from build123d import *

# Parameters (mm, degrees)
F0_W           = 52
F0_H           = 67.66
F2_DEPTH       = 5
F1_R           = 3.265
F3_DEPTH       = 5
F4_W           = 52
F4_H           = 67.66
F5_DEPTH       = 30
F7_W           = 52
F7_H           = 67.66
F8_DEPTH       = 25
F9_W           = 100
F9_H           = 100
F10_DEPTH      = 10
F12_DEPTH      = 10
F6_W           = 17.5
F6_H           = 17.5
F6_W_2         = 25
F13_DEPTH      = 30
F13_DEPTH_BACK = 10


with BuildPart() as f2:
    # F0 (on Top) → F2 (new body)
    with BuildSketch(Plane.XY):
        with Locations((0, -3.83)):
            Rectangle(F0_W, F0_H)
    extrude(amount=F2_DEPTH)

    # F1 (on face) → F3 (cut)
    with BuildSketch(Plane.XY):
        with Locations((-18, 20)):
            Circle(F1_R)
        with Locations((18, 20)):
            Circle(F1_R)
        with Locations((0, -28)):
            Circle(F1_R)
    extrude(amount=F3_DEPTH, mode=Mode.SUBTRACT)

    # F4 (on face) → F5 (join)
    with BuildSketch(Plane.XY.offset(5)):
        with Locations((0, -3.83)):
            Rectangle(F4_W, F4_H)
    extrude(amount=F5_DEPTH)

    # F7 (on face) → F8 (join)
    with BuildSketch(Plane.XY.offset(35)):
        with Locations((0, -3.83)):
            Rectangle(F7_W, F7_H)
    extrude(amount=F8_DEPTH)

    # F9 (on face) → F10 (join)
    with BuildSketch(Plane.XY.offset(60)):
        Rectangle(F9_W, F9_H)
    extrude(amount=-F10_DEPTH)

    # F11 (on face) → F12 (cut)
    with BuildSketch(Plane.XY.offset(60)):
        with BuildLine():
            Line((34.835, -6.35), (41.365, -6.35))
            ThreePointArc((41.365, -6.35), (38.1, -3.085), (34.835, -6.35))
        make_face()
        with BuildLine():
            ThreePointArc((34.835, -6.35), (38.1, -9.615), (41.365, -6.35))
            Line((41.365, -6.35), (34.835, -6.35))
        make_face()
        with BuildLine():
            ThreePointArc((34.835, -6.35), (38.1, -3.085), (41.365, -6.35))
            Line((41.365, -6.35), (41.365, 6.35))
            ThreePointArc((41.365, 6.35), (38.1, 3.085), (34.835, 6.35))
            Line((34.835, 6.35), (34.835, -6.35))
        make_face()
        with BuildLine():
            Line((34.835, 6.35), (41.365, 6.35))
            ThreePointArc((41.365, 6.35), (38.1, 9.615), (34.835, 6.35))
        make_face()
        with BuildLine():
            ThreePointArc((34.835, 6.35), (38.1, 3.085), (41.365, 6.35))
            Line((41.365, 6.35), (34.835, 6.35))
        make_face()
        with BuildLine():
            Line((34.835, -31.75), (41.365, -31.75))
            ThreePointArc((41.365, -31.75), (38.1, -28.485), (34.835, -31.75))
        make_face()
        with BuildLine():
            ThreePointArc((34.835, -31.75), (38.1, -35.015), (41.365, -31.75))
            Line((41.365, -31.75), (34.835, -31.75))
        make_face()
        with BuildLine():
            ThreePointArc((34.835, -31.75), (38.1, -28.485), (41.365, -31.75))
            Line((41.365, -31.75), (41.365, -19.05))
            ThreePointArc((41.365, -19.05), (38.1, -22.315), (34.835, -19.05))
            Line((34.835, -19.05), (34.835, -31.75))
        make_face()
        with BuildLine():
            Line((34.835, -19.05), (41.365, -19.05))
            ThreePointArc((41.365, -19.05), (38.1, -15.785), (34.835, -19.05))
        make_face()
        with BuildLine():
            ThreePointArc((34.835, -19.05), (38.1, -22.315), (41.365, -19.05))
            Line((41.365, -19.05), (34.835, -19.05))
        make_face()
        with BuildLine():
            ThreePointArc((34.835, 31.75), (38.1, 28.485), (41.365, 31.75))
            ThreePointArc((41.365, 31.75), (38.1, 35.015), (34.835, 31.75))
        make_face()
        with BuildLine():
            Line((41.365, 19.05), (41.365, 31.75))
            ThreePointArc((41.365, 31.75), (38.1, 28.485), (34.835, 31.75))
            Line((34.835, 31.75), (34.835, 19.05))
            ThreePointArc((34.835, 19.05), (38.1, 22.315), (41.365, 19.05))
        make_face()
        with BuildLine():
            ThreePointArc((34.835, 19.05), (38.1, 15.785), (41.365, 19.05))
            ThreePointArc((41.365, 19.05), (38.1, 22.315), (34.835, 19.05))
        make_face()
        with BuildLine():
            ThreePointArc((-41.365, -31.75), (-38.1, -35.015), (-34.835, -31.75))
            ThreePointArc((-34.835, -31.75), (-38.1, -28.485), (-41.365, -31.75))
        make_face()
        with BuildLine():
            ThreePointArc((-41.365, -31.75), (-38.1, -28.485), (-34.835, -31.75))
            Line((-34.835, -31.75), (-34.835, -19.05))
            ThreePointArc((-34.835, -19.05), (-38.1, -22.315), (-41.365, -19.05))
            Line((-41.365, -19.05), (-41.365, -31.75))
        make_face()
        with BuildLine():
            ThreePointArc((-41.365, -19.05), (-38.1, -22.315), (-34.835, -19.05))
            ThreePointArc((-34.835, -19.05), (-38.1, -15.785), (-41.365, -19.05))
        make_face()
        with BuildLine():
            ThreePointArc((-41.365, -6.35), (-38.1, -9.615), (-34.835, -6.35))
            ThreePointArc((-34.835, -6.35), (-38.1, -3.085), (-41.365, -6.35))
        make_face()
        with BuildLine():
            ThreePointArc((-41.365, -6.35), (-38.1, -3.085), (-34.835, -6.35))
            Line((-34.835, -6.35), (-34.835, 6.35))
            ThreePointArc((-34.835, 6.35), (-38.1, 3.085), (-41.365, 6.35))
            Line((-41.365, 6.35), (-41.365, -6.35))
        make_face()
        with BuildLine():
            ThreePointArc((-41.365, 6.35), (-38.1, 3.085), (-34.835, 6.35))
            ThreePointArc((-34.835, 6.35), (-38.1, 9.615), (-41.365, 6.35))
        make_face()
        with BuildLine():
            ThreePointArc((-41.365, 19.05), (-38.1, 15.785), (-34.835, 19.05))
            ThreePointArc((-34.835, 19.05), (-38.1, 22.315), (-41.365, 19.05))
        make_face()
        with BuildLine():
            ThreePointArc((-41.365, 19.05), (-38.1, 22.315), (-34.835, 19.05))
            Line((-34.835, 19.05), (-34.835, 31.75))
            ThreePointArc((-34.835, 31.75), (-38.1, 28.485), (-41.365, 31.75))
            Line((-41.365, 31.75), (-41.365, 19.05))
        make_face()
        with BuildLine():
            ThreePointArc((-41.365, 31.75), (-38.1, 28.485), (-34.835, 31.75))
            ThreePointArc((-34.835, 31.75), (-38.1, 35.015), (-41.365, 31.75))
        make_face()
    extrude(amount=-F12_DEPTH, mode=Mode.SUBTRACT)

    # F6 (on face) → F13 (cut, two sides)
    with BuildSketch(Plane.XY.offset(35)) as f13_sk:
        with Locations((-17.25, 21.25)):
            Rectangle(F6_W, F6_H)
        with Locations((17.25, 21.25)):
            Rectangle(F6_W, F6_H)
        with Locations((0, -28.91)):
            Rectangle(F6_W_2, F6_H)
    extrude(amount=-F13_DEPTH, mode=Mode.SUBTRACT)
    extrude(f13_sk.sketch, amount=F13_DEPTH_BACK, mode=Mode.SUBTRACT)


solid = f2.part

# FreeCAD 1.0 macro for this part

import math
import FreeCAD as App
import Part
import Sketcher
from FreeCAD import Vector


def add_polygon(sketch, points):
    """Adds a closed chain of lines whose ends are joined by coincident constraints."""
    first, n = sketch.GeometryCount, len(points)
    for a, b in zip(points, points[1:] + points[:1]):
        sketch.addGeometry(Part.LineSegment(App.Vector(*a, 0), App.Vector(*b, 0)), False)
    for i in range(n):
        sketch.addConstraint(Sketcher.Constraint("Coincident", first + i, 2, first + (i + 1) % n, 1))

doc = App.newDocument("Part")
body = doc.addObject("PartDesign::Body", "Body")

# Sketch on XY plane
sketch1 = body.newObject("Sketcher::SketchObject", "Sketch")
sketch1.AttachmentSupport = (doc.getObject("XY_Plane"), [""])
sketch1.MapMode = "FlatFace"
add_polygon(sketch1, [(-26, 30), (-26, -38), (26, -38), (26, 30)])  # lines 0-3
sketch1.addConstraint(Sketcher.Constraint("Vertical", 0))
sketch1.addConstraint(Sketcher.Constraint("Horizontal", 1))
sketch1.addConstraint(Sketcher.Constraint("Vertical", 2))
sketch1.addConstraint(Sketcher.Constraint("Horizontal", 3))
sketch1.addConstraint(Sketcher.Constraint("DistanceX", 1, 1, 1, 2, 52.0))
sketch1.addConstraint(Sketcher.Constraint("DistanceX", 0, 2, -1, 1, 26.0))
sketch1.addConstraint(Sketcher.Constraint("DistanceY", -1, 1, 2, 2, 30.0))
sketch1.addConstraint(Sketcher.Constraint("DistanceY", 0, 2, 0, 1, 67.66))
pad1 = body.newObject("PartDesign::Pad", "Pad")
pad1.Profile = sketch1
pad1.Length = 5

# Sketch on XY plane
sketch2 = body.newObject("Sketcher::SketchObject", "Sketch001")
sketch2.AttachmentSupport = (doc.getObject("XY_Plane"), [""])
sketch2.MapMode = "FlatFace"
sketch2.addGeometry(Part.Circle(Vector(-18, 20, 0), Vector(0, 0, 1), 3.3), False)
sketch2.addGeometry(Part.Circle(Vector(18, 20, 0), Vector(0, 0, 1), 3.3), False)
sketch2.addGeometry(Part.Circle(Vector(0, -28, 0), Vector(0, 0, 1), 3.3), False)
sketch2.addConstraint(Sketcher.Constraint("Equal", 0, 1))
sketch2.addConstraint(Sketcher.Constraint("Equal", 1, 2))
sketch2.addConstraint(Sketcher.Constraint("Symmetric", 0, 3, 1, 3, -2))
sketch2.addConstraint(Sketcher.Constraint("PointOnObject", 2, 3, -2))
sketch2.addConstraint(Sketcher.Constraint("Diameter", 0, 6.53))
sketch2.addConstraint(Sketcher.Constraint("DistanceX", 0, 3, -1, 1, 18.0))
sketch2.addConstraint(Sketcher.Constraint("DistanceY", -1, 1, 0, 3, 20.0))
sketch2.addConstraint(Sketcher.Constraint("DistanceY", 2, 3, -1, 1, 28.0))
pocket1 = body.newObject("PartDesign::Pocket", "Pocket")
pocket1.Profile = sketch2
pocket1.Length = 5
pocket1.Reversed = True

# Sketch on XY plane
sketch3 = body.newObject("Sketcher::SketchObject", "Sketch002")
sketch3.AttachmentSupport = (doc.getObject("XY_Plane"), [""])
sketch3.MapMode = "FlatFace"
sketch3.AttachmentOffset = App.Placement(Vector(0, 0, 5), App.Rotation())
add_polygon(sketch3, [(-26, 30), (-26, -38), (26, -38), (26, 30)])  # lines 0-3
sketch3.addConstraint(Sketcher.Constraint("Vertical", 0))
sketch3.addConstraint(Sketcher.Constraint("Horizontal", 1))
sketch3.addConstraint(Sketcher.Constraint("Vertical", 2))
sketch3.addConstraint(Sketcher.Constraint("Horizontal", 3))
sketch3.addConstraint(Sketcher.Constraint("DistanceX", 1, 1, 1, 2, 52.0))
sketch3.addConstraint(Sketcher.Constraint("DistanceX", 0, 2, -1, 1, 26.0))
sketch3.addConstraint(Sketcher.Constraint("DistanceY", -1, 1, 2, 2, 30.0))
sketch3.addConstraint(Sketcher.Constraint("DistanceY", 0, 2, 0, 1, 67.66))
pad2 = body.newObject("PartDesign::Pad", "Pad001")
pad2.Profile = sketch3
pad2.Length = 30

# Sketch on XY plane
sketch4 = body.newObject("Sketcher::SketchObject", "Sketch003")
sketch4.AttachmentSupport = (doc.getObject("XY_Plane"), [""])
sketch4.MapMode = "FlatFace"
sketch4.AttachmentOffset = App.Placement(Vector(0, 0, 35), App.Rotation())
add_polygon(sketch4, [(-26, 30), (-26, -38), (26, -38), (26, 30)])  # lines 0-3
sketch4.addConstraint(Sketcher.Constraint("Vertical", 0))
sketch4.addConstraint(Sketcher.Constraint("Horizontal", 1))
sketch4.addConstraint(Sketcher.Constraint("Vertical", 2))
sketch4.addConstraint(Sketcher.Constraint("Horizontal", 3))
sketch4.addConstraint(Sketcher.Constraint("DistanceX", 1, 1, 1, 2, 52.0))
sketch4.addConstraint(Sketcher.Constraint("DistanceX", 0, 2, -1, 1, 26.0))
sketch4.addConstraint(Sketcher.Constraint("DistanceY", -1, 1, 2, 2, 30.0))
sketch4.addConstraint(Sketcher.Constraint("DistanceY", 0, 2, 0, 1, 67.66))
pad3 = body.newObject("PartDesign::Pad", "Pad002")
pad3.Profile = sketch4
pad3.Length = 25

# Sketch on XY plane
sketch5 = body.newObject("Sketcher::SketchObject", "Sketch004")
sketch5.AttachmentSupport = (doc.getObject("XY_Plane"), [""])
sketch5.MapMode = "FlatFace"
sketch5.AttachmentOffset = App.Placement(Vector(0, 0, 60), App.Rotation())
add_polygon(sketch5, [(-50, 50), (-50, -50), (50, -50), (50, 50)])  # lines 0-3
sketch5.addConstraint(Sketcher.Constraint("Vertical", 0))
sketch5.addConstraint(Sketcher.Constraint("Horizontal", 1))
sketch5.addConstraint(Sketcher.Constraint("Vertical", 2))
sketch5.addConstraint(Sketcher.Constraint("Horizontal", 3))
sketch5.addConstraint(Sketcher.Constraint("Symmetric", 0, 2, 2, 2, -1, 1))
sketch5.addConstraint(Sketcher.Constraint("Equal", 3, 0))
sketch5.addConstraint(Sketcher.Constraint("DistanceX", 1, 1, 1, 2, 100.0))
pad4 = body.newObject("PartDesign::Pad", "Pad003")
pad4.Profile = sketch5
pad4.Length = 10
pad4.Reversed = True

# Sketch on XY plane
sketch6 = body.newObject("Sketcher::SketchObject", "Sketch005")
sketch6.AttachmentSupport = (doc.getObject("XY_Plane"), [""])
sketch6.MapMode = "FlatFace"
sketch6.AttachmentOffset = App.Placement(Vector(0, 0, 60), App.Rotation())
sketch6.addGeometry(Part.ArcOfCircle(Part.Circle(Vector(38.1, -6.3, 0), Vector(0, 0, 1), 3.3), math.radians(180), math.radians(360)), False)
sketch6.addGeometry(Part.LineSegment(Vector(41.4, -6.3, 0), Vector(41.4, 6.3, 0)), False)
sketch6.addGeometry(Part.ArcOfCircle(Part.Circle(Vector(38.1, 6.3, 0), Vector(0, 0, 1), 3.3), math.radians(0), math.radians(180)), False)
sketch6.addGeometry(Part.LineSegment(Vector(34.8, 6.3, 0), Vector(34.8, -6.3, 0)), False)
sketch6.addGeometry(Part.ArcOfCircle(Part.Circle(Vector(38.1, -31.8, 0), Vector(0, 0, 1), 3.3), math.radians(180), math.radians(360)), False)
sketch6.addGeometry(Part.LineSegment(Vector(41.4, -31.8, 0), Vector(41.4, -19.1, 0)), False)
sketch6.addGeometry(Part.ArcOfCircle(Part.Circle(Vector(38.1, -19.1, 0), Vector(0, 0, 1), 3.3), math.radians(0), math.radians(180)), False)
sketch6.addGeometry(Part.LineSegment(Vector(34.8, -19.1, 0), Vector(34.8, -31.8, 0)), False)
sketch6.addGeometry(Part.ArcOfCircle(Part.Circle(Vector(38.1, 31.8, 0), Vector(0, 0, 1), 3.3), math.radians(0), math.radians(180)), False)
sketch6.addGeometry(Part.LineSegment(Vector(34.8, 31.8, 0), Vector(34.8, 19.1, 0)), False)
sketch6.addGeometry(Part.ArcOfCircle(Part.Circle(Vector(38.1, 19.1, 0), Vector(0, 0, 1), 3.3), math.radians(180), math.radians(360)), False)
sketch6.addGeometry(Part.LineSegment(Vector(41.4, 19.1, 0), Vector(41.4, 31.8, 0)), False)
sketch6.addGeometry(Part.ArcOfCircle(Part.Circle(Vector(-38.1, -31.8, 0), Vector(0, 0, 1), 3.3), math.radians(180), math.radians(360)), False)
sketch6.addGeometry(Part.LineSegment(Vector(-34.8, -31.8, 0), Vector(-34.8, -19.1, 0)), False)
sketch6.addGeometry(Part.ArcOfCircle(Part.Circle(Vector(-38.1, -19.1, 0), Vector(0, 0, 1), 3.3), math.radians(0), math.radians(180)), False)
sketch6.addGeometry(Part.LineSegment(Vector(-41.4, -19.1, 0), Vector(-41.4, -31.8, 0)), False)
sketch6.addGeometry(Part.ArcOfCircle(Part.Circle(Vector(-38.1, -6.3, 0), Vector(0, 0, 1), 3.3), math.radians(180), math.radians(360)), False)
sketch6.addGeometry(Part.LineSegment(Vector(-34.8, -6.3, 0), Vector(-34.8, 6.3, 0)), False)
sketch6.addGeometry(Part.ArcOfCircle(Part.Circle(Vector(-38.1, 6.3, 0), Vector(0, 0, 1), 3.3), math.radians(0), math.radians(180)), False)
sketch6.addGeometry(Part.LineSegment(Vector(-41.4, 6.3, 0), Vector(-41.4, -6.3, 0)), False)
sketch6.addGeometry(Part.ArcOfCircle(Part.Circle(Vector(-38.1, 19.1, 0), Vector(0, 0, 1), 3.3), math.radians(180), math.radians(360)), False)
sketch6.addGeometry(Part.LineSegment(Vector(-34.8, 19.1, 0), Vector(-34.8, 31.8, 0)), False)
sketch6.addGeometry(Part.ArcOfCircle(Part.Circle(Vector(-38.1, 31.8, 0), Vector(0, 0, 1), 3.3), math.radians(0), math.radians(180)), False)
sketch6.addGeometry(Part.LineSegment(Vector(-41.4, 31.8, 0), Vector(-41.4, 19.1, 0)), False)
sketch6.addConstraint(Sketcher.Constraint("Tangent", 0, 2, 1, 1))
sketch6.addConstraint(Sketcher.Constraint("Tangent", 1, 2, 2, 1))
sketch6.addConstraint(Sketcher.Constraint("Tangent", 2, 2, 3, 1))
sketch6.addConstraint(Sketcher.Constraint("Tangent", 3, 2, 0, 1))
sketch6.addConstraint(Sketcher.Constraint("Tangent", 4, 2, 5, 1))
sketch6.addConstraint(Sketcher.Constraint("Tangent", 5, 2, 6, 1))
sketch6.addConstraint(Sketcher.Constraint("Tangent", 6, 2, 7, 1))
sketch6.addConstraint(Sketcher.Constraint("Tangent", 7, 2, 4, 1))
sketch6.addConstraint(Sketcher.Constraint("Tangent", 8, 2, 9, 1))
sketch6.addConstraint(Sketcher.Constraint("Tangent", 9, 2, 10, 1))
sketch6.addConstraint(Sketcher.Constraint("Tangent", 10, 2, 11, 1))
sketch6.addConstraint(Sketcher.Constraint("Tangent", 11, 2, 8, 1))
sketch6.addConstraint(Sketcher.Constraint("Tangent", 12, 2, 13, 1))
sketch6.addConstraint(Sketcher.Constraint("Tangent", 13, 2, 14, 1))
sketch6.addConstraint(Sketcher.Constraint("Tangent", 14, 2, 15, 1))
sketch6.addConstraint(Sketcher.Constraint("Tangent", 15, 2, 12, 1))
sketch6.addConstraint(Sketcher.Constraint("Tangent", 16, 2, 17, 1))
sketch6.addConstraint(Sketcher.Constraint("Tangent", 17, 2, 18, 1))
sketch6.addConstraint(Sketcher.Constraint("Tangent", 18, 2, 19, 1))
sketch6.addConstraint(Sketcher.Constraint("Tangent", 19, 2, 16, 1))
sketch6.addConstraint(Sketcher.Constraint("Tangent", 20, 2, 21, 1))
sketch6.addConstraint(Sketcher.Constraint("Tangent", 21, 2, 22, 1))
sketch6.addConstraint(Sketcher.Constraint("Tangent", 22, 2, 23, 1))
sketch6.addConstraint(Sketcher.Constraint("Tangent", 23, 2, 20, 1))
sketch6.addConstraint(Sketcher.Constraint("Vertical", 1))
sketch6.addConstraint(Sketcher.Constraint("Vertical", 3))
sketch6.addConstraint(Sketcher.Constraint("Vertical", 5))
sketch6.addConstraint(Sketcher.Constraint("Vertical", 7))
sketch6.addConstraint(Sketcher.Constraint("Vertical", 9))
sketch6.addConstraint(Sketcher.Constraint("Vertical", 11))
sketch6.addConstraint(Sketcher.Constraint("Vertical", 13))
sketch6.addConstraint(Sketcher.Constraint("Vertical", 15))
sketch6.addConstraint(Sketcher.Constraint("Vertical", 17))
sketch6.addConstraint(Sketcher.Constraint("Vertical", 19))
sketch6.addConstraint(Sketcher.Constraint("Vertical", 21))
sketch6.addConstraint(Sketcher.Constraint("Vertical", 23))
sketch6.addConstraint(Sketcher.Constraint("Equal", 2, 4))
sketch6.addConstraint(Sketcher.Constraint("Equal", 6, 8))
sketch6.addConstraint(Sketcher.Constraint("Equal", 10, 12))
sketch6.addConstraint(Sketcher.Constraint("Equal", 14, 16))
sketch6.addConstraint(Sketcher.Constraint("Equal", 18, 20))
sketch6.addConstraint(Sketcher.Constraint("Symmetric", 8, 3, 12, 3, -1, 1))
sketch6.addConstraint(Sketcher.Constraint("Symmetric", 2, 3, 16, 3, -1, 1))
sketch6.addConstraint(Sketcher.Constraint("Symmetric", 6, 3, 20, 3, -1, 1))
sketch6.addConstraint(Sketcher.Constraint("Symmetric", 4, 3, 12, 3, -2))
sketch6.addConstraint(Sketcher.Constraint("Horizontal", 6, 3, 14, 3))
sketch6.addConstraint(Sketcher.Constraint("Horizontal", 0, 3, 16, 3))
sketch6.addConstraint(Sketcher.Constraint("Horizontal", 2, 3, 18, 3))
sketch6.addConstraint(Sketcher.Constraint("Horizontal", 10, 3, 20, 3))
sketch6.addConstraint(Sketcher.Constraint("Horizontal", 8, 3, 22, 3))
sketch6.addConstraint(Sketcher.Constraint("Vertical", 2, 3, 4, 3))
sketch6.addConstraint(Sketcher.Constraint("Equal", 3, 5))
sketch6.addConstraint(Sketcher.Constraint("DistanceY", 1, 1, 1, 2, 12.7))
sketch6.addConstraint(Sketcher.Constraint("Radius", 0, 3.265))
sketch6.addConstraint(Sketcher.Constraint("DistanceX", -1, 1, 0, 3, 38.1))
sketch6.addConstraint(Sketcher.Constraint("DistanceY", 4, 3, 0, 3, 25.4))
pocket2 = body.newObject("PartDesign::Pocket", "Pocket001")
pocket2.Profile = sketch6
pocket2.Length = 10

# Sketch on XY plane
sketch7 = body.newObject("Sketcher::SketchObject", "Sketch006")
sketch7.AttachmentSupport = (doc.getObject("XY_Plane"), [""])
sketch7.MapMode = "FlatFace"
sketch7.AttachmentOffset = App.Placement(Vector(0, 0, 35), App.Rotation())
add_polygon(sketch7, [(-26, 30), (-26, 12), (-8, 12), (-8, 30)])  # lines 0-3
add_polygon(sketch7, [(8, 30), (8, 12), (26, 12), (26, 30)])  # lines 4-7
add_polygon(sketch7, [(-12, -20), (-12, -38), (12, -38), (12, -20)])  # lines 8-11
sketch7.addConstraint(Sketcher.Constraint("Vertical", 0))
sketch7.addConstraint(Sketcher.Constraint("Horizontal", 1))
sketch7.addConstraint(Sketcher.Constraint("Vertical", 2))
sketch7.addConstraint(Sketcher.Constraint("Horizontal", 3))
sketch7.addConstraint(Sketcher.Constraint("Vertical", 4))
sketch7.addConstraint(Sketcher.Constraint("Horizontal", 5))
sketch7.addConstraint(Sketcher.Constraint("Vertical", 6))
sketch7.addConstraint(Sketcher.Constraint("Horizontal", 7))
sketch7.addConstraint(Sketcher.Constraint("Vertical", 8))
sketch7.addConstraint(Sketcher.Constraint("Horizontal", 9))
sketch7.addConstraint(Sketcher.Constraint("Vertical", 10))
sketch7.addConstraint(Sketcher.Constraint("Horizontal", 11))
sketch7.addConstraint(Sketcher.Constraint("Symmetric", 1, 2, 4, 2, -2))
sketch7.addConstraint(Sketcher.Constraint("Symmetric", 3, 2, 6, 2, -2))
sketch7.addConstraint(Sketcher.Constraint("Equal", 7, 0))
sketch7.addConstraint(Sketcher.Constraint("Equal", 6, 8))
sketch7.addConstraint(Sketcher.Constraint("DistanceX", 9, 1, 9, 2, 25.0))
sketch7.addConstraint(Sketcher.Constraint("DistanceX", 1, 1, 1, 2, 17.5))
sketch7.addConstraint(Sketcher.Constraint("DistanceX", 0, 2, -1, 1, 26.0))
sketch7.addConstraint(Sketcher.Constraint("DistanceY", -1, 1, 2, 2, 30.0))
sketch7.addConstraint(Sketcher.Constraint("DistanceX", 8, 2, 1, 2, 4.0))
sketch7.addConstraint(Sketcher.Constraint("DistanceY", 8, 2, -1, 1, 37.66))
pocket3 = body.newObject("PartDesign::Pocket", "Pocket002")
pocket3.Profile = sketch7
pocket3.Type = "TwoLengths"
pocket3.Length = 30
pocket3.Length2 = 10

doc.recompute()
